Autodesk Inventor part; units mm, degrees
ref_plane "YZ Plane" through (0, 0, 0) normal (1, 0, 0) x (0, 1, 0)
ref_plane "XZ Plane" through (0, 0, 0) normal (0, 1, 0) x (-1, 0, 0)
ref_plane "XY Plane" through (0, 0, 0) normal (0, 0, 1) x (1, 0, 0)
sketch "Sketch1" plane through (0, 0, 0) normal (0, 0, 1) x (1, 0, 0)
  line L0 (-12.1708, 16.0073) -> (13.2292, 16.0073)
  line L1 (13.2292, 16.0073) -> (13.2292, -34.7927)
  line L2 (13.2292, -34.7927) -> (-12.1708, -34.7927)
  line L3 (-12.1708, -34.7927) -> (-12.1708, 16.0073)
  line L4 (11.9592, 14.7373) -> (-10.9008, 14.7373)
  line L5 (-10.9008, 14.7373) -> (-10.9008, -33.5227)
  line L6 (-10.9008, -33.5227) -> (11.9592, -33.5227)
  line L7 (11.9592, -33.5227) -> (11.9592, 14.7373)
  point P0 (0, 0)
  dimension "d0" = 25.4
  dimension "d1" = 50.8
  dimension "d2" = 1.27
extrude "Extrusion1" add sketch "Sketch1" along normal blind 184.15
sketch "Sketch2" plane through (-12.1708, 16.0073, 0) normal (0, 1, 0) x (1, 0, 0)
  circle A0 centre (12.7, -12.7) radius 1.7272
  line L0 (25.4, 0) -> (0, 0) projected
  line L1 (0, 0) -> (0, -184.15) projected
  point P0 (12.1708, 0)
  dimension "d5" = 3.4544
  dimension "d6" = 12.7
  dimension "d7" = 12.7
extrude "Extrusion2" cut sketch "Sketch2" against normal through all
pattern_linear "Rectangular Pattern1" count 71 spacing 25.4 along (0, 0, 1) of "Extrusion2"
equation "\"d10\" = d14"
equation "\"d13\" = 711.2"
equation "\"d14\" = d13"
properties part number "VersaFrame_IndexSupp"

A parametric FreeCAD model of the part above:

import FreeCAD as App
import Part
import Sketcher
Q = App.Units.Quantity


def add_polygon(sketch, points):
    """Adds a closed chain of lines whose ends are joined by coincident constraints."""
    first, n = sketch.GeometryCount, len(points)
    for a, b in zip(points, points[1:] + points[:1]):
        sketch.addGeometry(Part.LineSegment(App.Vector(*a, 0), App.Vector(*b, 0)), False)
    for i in range(n):
        sketch.addConstraint(Sketcher.Constraint("Coincident", first + i, 2, first + (i + 1) % n, 1))

doc = App.newDocument("Part")
body = doc.addObject("PartDesign::Body", "Body")

# Sketch on XY plane
sketch1 = body.newObject("Sketcher::SketchObject", "Sketch")
sketch1.AttachmentSupport = (doc.getObject("XY_Plane"), [""])
sketch1.MapMode = "FlatFace"
add_polygon(sketch1, [(13, 16), (-12, 16), (-12, -35), (13, -35)])  # lines 0-3
add_polygon(sketch1, [(-11, 15), (12, 15), (12, -34), (-11, -34)])  # lines 4-7
sketch1.addConstraint(Sketcher.Constraint("Horizontal", 0))
sketch1.addConstraint(Sketcher.Constraint("Vertical", 1))
sketch1.addConstraint(Sketcher.Constraint("Horizontal", 2))
sketch1.addConstraint(Sketcher.Constraint("Vertical", 3))
sketch1.addConstraint(Sketcher.Constraint("Horizontal", 4))
sketch1.addConstraint(Sketcher.Constraint("Vertical", 5))
sketch1.addConstraint(Sketcher.Constraint("Horizontal", 6))
sketch1.addConstraint(Sketcher.Constraint("Vertical", 7))
sketch1.addConstraint(Sketcher.Constraint("DistanceX", 0, 2, 0, 1, Q("1 in")))
sketch1.addConstraint(Sketcher.Constraint("DistanceY", 1, 2, 1, 1, Q("2 in")))
sketch1.addConstraint(Sketcher.Constraint("DistanceX", 4, 2, 3, 2, Q("0.05 in")))
sketch1.addConstraint(Sketcher.Constraint("DistanceY", 4, 2, 3, 2, Q("0.05 in")))
sketch1.addConstraint(Sketcher.Constraint("DistanceY", 2, 2, 5, 2, Q("0.05 in")))
sketch1.addConstraint(Sketcher.Constraint("DistanceX", 1, 2, 6, 2, Q("0.05 in")))
sketch1.addConstraint(Sketcher.Constraint("DistanceY", -1, 1, 0, 2, Q("0.6302 in")))
sketch1.addConstraint(Sketcher.Constraint("DistanceX", 0, 2, -1, 1, Q("12.1708 mm")))
pad1 = body.newObject("PartDesign::Pad", "Pad")
pad1.Profile = sketch1
pad1.Length = Q("7.25 in")

# Sketch on XZ plane
sketch2 = body.newObject("Sketcher::SketchObject", "Sketch001")
sketch2.AttachmentSupport = (doc.getObject("XZ_Plane"), [""])
sketch2.MapMode = "FlatFace"
sketch2.AttachmentOffset = App.Placement(App.Vector(0, 0, -0.6302087 * 25.4), App.Rotation())
sketch2.addGeometry(Part.Circle(App.Vector(0.5, 12.7, 0), App.Vector(0, 0, 1), 1.7), False)
sketch2.addConstraint(Sketcher.Constraint("Diameter", 0, Q("0.136 in")))
sketch2.addConstraint(Sketcher.Constraint("DistanceY", -1, 1, 0, 3, Q("0.5 in")))
sketch2.addConstraint(Sketcher.Constraint("DistanceX", -1, 1, 0, 3, Q("0.5292 mm")))
pocket1 = body.newObject("PartDesign::Pocket", "Pocket")
pocket1.Profile = sketch2
pocket1.Type = "ThroughAll"
pocket1.Reversed = True
doc.recompute()

linearpattern = body.newObject("PartDesign::LinearPattern", "LinearPattern")
linearpattern.Originals = [pocket1]
linearpattern.Direction = (doc.getObject("Z_Axis"), [""])
linearpattern.Mode = "offset"
linearpattern.Offset = Q("1 in")
linearpattern.Occurrences = 71
body.Tip = linearpattern

doc.recompute()
